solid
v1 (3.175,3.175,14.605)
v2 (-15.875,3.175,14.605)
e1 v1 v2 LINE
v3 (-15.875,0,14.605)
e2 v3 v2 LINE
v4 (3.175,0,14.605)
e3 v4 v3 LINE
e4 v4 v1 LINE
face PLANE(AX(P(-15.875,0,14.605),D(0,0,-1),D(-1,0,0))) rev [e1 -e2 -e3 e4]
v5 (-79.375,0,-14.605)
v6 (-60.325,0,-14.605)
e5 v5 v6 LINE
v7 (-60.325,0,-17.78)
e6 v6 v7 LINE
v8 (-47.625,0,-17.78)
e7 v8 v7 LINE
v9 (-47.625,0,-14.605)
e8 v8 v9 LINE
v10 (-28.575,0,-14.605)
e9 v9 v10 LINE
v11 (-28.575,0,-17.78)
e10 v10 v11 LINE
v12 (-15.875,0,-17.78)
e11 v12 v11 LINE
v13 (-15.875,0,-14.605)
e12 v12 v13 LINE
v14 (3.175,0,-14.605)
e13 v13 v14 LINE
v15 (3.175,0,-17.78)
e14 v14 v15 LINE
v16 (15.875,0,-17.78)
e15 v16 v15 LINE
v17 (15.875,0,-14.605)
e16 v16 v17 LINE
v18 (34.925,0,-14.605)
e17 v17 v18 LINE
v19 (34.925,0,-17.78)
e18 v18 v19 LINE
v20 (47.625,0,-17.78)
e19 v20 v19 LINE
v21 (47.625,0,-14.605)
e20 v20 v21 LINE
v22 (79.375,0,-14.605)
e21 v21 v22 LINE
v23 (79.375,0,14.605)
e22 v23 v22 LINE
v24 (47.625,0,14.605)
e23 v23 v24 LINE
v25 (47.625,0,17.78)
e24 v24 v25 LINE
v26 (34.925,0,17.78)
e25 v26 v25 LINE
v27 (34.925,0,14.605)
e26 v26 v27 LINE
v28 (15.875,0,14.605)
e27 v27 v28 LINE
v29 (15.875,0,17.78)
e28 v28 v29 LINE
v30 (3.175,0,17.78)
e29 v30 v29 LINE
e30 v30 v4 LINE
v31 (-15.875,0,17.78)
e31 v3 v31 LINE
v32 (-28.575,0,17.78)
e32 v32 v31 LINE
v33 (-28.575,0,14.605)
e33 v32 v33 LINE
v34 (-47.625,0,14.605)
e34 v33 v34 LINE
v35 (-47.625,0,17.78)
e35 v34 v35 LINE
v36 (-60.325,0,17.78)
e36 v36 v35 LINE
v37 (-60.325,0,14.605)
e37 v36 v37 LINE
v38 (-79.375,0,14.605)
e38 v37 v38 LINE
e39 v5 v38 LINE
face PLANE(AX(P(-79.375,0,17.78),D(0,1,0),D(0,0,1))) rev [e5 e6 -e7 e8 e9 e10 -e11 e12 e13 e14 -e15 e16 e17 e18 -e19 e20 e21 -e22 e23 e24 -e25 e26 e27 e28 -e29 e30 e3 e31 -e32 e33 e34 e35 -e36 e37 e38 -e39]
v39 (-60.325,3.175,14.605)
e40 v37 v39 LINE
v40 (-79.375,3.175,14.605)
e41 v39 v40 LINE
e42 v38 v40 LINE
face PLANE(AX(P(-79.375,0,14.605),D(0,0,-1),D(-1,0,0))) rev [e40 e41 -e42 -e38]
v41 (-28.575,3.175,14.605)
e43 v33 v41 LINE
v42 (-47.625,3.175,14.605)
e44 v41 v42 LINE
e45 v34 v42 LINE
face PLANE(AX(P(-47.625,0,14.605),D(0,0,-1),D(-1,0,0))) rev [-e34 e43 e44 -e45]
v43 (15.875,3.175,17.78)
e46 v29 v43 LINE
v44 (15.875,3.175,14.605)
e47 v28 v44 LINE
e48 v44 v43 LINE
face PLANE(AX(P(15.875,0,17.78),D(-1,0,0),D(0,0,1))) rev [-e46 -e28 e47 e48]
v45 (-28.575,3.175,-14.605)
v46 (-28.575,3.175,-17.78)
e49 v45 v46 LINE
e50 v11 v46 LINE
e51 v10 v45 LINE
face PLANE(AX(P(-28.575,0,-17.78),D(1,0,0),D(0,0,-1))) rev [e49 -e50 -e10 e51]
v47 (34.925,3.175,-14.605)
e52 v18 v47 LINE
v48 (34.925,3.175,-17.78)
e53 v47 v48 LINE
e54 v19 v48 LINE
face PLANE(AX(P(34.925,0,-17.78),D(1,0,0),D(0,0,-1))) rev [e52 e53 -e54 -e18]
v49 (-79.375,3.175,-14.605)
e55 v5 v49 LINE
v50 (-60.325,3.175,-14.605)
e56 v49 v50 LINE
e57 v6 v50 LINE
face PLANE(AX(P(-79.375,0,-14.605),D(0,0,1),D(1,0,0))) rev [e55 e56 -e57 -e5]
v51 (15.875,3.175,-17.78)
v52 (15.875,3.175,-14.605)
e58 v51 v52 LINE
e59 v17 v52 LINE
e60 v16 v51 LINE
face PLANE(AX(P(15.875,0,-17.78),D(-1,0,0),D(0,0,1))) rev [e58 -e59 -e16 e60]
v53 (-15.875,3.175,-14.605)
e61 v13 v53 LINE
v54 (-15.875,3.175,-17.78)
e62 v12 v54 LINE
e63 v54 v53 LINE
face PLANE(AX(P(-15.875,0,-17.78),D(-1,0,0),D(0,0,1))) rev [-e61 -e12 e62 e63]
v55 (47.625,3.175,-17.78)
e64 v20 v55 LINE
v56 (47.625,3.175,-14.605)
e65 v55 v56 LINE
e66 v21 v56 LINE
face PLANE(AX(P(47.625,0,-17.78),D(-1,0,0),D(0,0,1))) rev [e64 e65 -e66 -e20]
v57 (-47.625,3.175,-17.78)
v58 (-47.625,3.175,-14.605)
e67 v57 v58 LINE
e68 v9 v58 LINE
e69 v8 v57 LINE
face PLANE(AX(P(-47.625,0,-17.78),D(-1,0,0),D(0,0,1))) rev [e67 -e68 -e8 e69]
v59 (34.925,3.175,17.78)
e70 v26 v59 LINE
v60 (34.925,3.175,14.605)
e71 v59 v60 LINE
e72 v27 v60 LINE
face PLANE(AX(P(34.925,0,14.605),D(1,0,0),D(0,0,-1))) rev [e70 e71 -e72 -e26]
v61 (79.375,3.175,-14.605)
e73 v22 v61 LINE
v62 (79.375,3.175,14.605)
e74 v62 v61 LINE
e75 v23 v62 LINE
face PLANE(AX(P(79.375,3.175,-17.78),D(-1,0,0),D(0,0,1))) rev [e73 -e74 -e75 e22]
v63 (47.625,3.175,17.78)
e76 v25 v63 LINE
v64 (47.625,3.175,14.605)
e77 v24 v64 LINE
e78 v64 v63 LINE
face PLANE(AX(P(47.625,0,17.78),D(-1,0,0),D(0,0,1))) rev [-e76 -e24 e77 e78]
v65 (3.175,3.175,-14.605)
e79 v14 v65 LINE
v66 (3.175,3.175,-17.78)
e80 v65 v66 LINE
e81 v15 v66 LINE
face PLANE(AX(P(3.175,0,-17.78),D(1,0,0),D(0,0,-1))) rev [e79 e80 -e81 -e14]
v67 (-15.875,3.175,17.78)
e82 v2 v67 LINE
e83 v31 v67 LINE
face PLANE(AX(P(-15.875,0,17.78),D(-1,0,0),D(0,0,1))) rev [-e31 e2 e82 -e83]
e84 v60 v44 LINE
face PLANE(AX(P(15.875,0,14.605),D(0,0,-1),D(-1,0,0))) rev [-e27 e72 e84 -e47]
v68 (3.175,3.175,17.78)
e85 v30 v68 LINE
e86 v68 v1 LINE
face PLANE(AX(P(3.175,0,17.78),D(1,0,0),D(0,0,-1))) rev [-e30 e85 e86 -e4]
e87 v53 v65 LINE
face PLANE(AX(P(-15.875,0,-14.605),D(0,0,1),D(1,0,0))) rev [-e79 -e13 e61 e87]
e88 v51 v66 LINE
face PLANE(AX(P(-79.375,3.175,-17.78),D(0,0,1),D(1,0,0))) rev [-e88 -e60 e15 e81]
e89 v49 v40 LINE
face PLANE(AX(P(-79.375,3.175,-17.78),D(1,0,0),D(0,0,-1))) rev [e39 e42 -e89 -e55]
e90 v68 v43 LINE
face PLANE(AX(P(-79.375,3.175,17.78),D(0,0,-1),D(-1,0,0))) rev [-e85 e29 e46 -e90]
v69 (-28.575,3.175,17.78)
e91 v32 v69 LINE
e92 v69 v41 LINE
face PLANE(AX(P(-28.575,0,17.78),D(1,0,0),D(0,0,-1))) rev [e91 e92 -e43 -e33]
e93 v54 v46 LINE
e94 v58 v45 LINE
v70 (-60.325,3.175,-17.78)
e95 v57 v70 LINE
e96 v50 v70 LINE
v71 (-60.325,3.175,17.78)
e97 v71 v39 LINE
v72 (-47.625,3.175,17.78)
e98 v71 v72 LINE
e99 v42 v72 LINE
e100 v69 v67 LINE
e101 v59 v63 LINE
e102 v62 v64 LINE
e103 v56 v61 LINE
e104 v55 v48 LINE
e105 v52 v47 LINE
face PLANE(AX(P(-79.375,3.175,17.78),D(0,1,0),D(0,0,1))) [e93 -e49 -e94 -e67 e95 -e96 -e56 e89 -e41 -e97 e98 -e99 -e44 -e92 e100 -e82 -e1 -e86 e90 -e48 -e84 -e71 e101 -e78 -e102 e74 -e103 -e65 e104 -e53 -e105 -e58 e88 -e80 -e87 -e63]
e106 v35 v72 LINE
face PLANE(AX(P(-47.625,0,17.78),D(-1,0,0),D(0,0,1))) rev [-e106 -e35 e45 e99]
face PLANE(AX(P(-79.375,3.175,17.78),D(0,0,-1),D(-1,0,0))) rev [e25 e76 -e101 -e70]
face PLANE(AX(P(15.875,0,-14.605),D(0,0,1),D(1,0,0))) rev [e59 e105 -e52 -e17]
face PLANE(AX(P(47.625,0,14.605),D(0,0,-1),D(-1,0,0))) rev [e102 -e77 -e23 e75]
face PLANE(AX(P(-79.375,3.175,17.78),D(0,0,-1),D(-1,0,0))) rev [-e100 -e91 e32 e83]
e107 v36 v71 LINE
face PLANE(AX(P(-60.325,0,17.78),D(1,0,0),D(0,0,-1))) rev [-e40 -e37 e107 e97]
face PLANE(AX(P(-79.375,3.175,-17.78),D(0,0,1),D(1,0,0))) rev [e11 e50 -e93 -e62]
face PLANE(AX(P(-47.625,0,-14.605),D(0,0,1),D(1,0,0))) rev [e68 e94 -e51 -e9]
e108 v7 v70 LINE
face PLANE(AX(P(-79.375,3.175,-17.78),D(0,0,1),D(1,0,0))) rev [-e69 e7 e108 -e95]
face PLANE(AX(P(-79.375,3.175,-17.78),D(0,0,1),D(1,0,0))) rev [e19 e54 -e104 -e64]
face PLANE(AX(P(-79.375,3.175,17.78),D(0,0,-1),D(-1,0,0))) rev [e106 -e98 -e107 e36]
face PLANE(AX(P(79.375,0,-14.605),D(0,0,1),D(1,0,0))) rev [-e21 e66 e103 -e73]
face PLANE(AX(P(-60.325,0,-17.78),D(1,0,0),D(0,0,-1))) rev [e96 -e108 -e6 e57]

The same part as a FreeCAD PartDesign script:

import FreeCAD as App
import Part
import Sketcher
from FreeCAD import Vector
Q = App.Units.Quantity


def add_polygon(sketch, points):
    """Adds a closed chain of lines whose ends are joined by coincident constraints."""
    first, n = sketch.GeometryCount, len(points)
    for a, b in zip(points, points[1:] + points[:1]):
        sketch.addGeometry(Part.LineSegment(App.Vector(*a, 0), App.Vector(*b, 0)), False)
    for i in range(n):
        sketch.addConstraint(Sketcher.Constraint("Coincident", first + i, 2, first + (i + 1) % n, 1))

doc = App.newDocument("Part")
body = doc.addObject("PartDesign::Body", "Body")

# Sketch on XZ plane
sketch1 = doc.addObject("Sketcher::SketchObject", "Sketch")
body.addObject(sketch1)
sketch1.AttachmentSupport = (doc.XZ_Plane, [""])
sketch1.MapMode = "FlatFace"
add_polygon(sketch1, [(-79, -18), (-79, 18), (79, 18), (79, -18)])  # lines 0-3
sketch1.addConstraint([
    Sketcher.Constraint("Vertical", 0),
    Sketcher.Constraint("Horizontal", 1),
    Sketcher.Constraint("Vertical", 2),
    Sketcher.Constraint("Horizontal", 3),
    Sketcher.Constraint("Symmetric", 0, 2, 2, 2, -1, 1),
    Sketcher.Constraint("DistanceY", 0, 1, 0, 2, Q("1.4 in")),
    Sketcher.Constraint("DistanceX", 1, 1, 1, 2, Q("6.25 in")),
])
pad1 = doc.addObject("PartDesign::Pad", "Pad")
body.addObject(pad1)
pad1.Profile = sketch1
pad1.Length = Q("0.125 in")
pad1.Reversed = True

# Sketch on XZ plane
sketch2 = doc.addObject("Sketcher::SketchObject", "Sketch001")
body.addObject(sketch2)
sketch2.AttachmentSupport = (doc.XZ_Plane, [""])
sketch2.MapMode = "FlatFace"
sketch2.AttachmentOffset = App.Placement(Vector(0, 0, -0.125 * 25.4), App.Rotation())
add_polygon(sketch2, [(79.4, 14.6), (47.6, 14.6), (47.6, 17.8), (79.4, 17.8)])  # lines 0-3
add_polygon(sketch2, [(-79.4, -17.8), (-79.4, -14.6), (-60.3, -14.6), (-60.3, -17.8)])  # lines 4-7
add_polygon(sketch2, [(79.4, -17.8), (47.6, -17.8), (47.6, -14.6), (79.4, -14.6)])  # lines 8-11
add_polygon(sketch2, [(15.9, 14.6), (15.9, 17.8), (34.9, 17.8), (34.9, 14.6)])  # lines 12-15
add_polygon(sketch2, [(-15.9, 14.6), (-15.9, 17.8), (3.2, 17.8), (3.2, 14.6)])  # lines 16-19
add_polygon(sketch2, [(-47.6, 14.6), (-47.6, 17.8), (-28.6, 17.8), (-28.6, 14.6)])  # lines 20-23
add_polygon(sketch2, [(-79.4, 14.6), (-79.4, 17.8), (-60.3, 17.8), (-60.3, 14.6)])  # lines 24-27
add_polygon(sketch2, [(-47.6, -17.8), (-47.6, -14.6), (-28.6, -14.6), (-28.6, -17.8)])  # lines 28-31
add_polygon(sketch2, [(-15.9, -17.8), (-15.9, -14.6), (3.2, -14.6), (3.2, -17.8)])  # lines 32-35
add_polygon(sketch2, [(15.9, -17.8), (15.9, -14.6), (34.9, -14.6), (34.9, -17.8)])  # lines 36-39
sketch2.addConstraint([
    Sketcher.Constraint("Horizontal", 0),
    Sketcher.Constraint("Vertical", 1),
    Sketcher.Constraint("Horizontal", 2),
    Sketcher.Constraint("Vertical", 3),
    Sketcher.Constraint("Vertical", 4),
    Sketcher.Constraint("Horizontal", 5),
    Sketcher.Constraint("Vertical", 6),
    Sketcher.Constraint("Horizontal", 7),
    Sketcher.Constraint("Horizontal", 8),
    Sketcher.Constraint("Vertical", 9),
    Sketcher.Constraint("Horizontal", 10),
    Sketcher.Constraint("Vertical", 11),
    Sketcher.Constraint("Vertical", 12),
    Sketcher.Constraint("Horizontal", 13),
    Sketcher.Constraint("Vertical", 14),
    Sketcher.Constraint("Horizontal", 15),
    Sketcher.Constraint("Vertical", 16),
    Sketcher.Constraint("Horizontal", 17),
    Sketcher.Constraint("Vertical", 18),
    Sketcher.Constraint("Horizontal", 19),
    Sketcher.Constraint("Vertical", 20),
    Sketcher.Constraint("Horizontal", 21),
    Sketcher.Constraint("Vertical", 22),
    Sketcher.Constraint("Horizontal", 23),
    Sketcher.Constraint("Vertical", 24),
    Sketcher.Constraint("Horizontal", 25),
    Sketcher.Constraint("Vertical", 26),
    Sketcher.Constraint("Horizontal", 27),
    Sketcher.Constraint("Vertical", 28),
    Sketcher.Constraint("Horizontal", 29),
    Sketcher.Constraint("Vertical", 30),
    Sketcher.Constraint("Horizontal", 31),
    Sketcher.Constraint("Vertical", 32),
    Sketcher.Constraint("Horizontal", 33),
    Sketcher.Constraint("Vertical", 34),
    Sketcher.Constraint("Horizontal", 35),
    Sketcher.Constraint("Vertical", 36),
    Sketcher.Constraint("Horizontal", 37),
    Sketcher.Constraint("Vertical", 38),
    Sketcher.Constraint("Horizontal", 39),
    Sketcher.Constraint("Symmetric", 3, 2, 4, 2, -1, 1),
    Sketcher.Constraint("Symmetric", 8, 2, 20, 2, -1, 1),
    Sketcher.Constraint("Symmetric", 11, 2, 24, 2, -1, 1),
    Sketcher.Constraint("Symmetric", 0, 2, 28, 2, -1, 1),
    Sketcher.Constraint("Symmetric", 15, 2, 32, 2, -1, 1),
    Sketcher.Constraint("Symmetric", 19, 2, 36, 2, -1, 1),
    Sketcher.Constraint("Symmetric", 4, 2, 10, 2, -2),
    Sketcher.Constraint("Symmetric", 12, 2, 16, 2, -2),
    Sketcher.Constraint("Symmetric", 1, 2, 20, 2, -2),
    Sketcher.Constraint("Symmetric", 6, 2, 25, 2, -1),
    Sketcher.Constraint("Symmetric", 22, 2, 29, 2, -1),
    Sketcher.Constraint("Symmetric", 18, 2, 33, 2, -1),
    Sketcher.Constraint("Symmetric", 13, 2, 38, 2, -1),
    Sketcher.Constraint("Horizontal", 2, 2, 12, 2),
    Sketcher.Constraint("Horizontal", 3, 2, 14, 2),
    Sketcher.Constraint("Horizontal", 23, 2, 26, 2),
    Sketcher.Constraint("Horizontal", 11, 2, 30, 2),
    Sketcher.Constraint("Horizontal", 31, 2, 34, 2),
    Sketcher.Constraint("Equal", 7, 13),
    Sketcher.Constraint("Equal", 15, 17),
    Sketcher.Constraint("Equal", 19, 21),
    Sketcher.Constraint("DistanceX", 4, 2, 0, 2, Q("5 in")),
    Sketcher.Constraint("DistanceX", 16, 2, 13, 2, Q("2 in")),
    Sketcher.Constraint("DistanceX", 0, 2, 0, 1, Q("1.25 in")),
    Sketcher.Constraint("DistanceX", 5, 1, 5, 2, Q("0.75 in")),
    Sketcher.Constraint("DistanceY", -1, 1, 1, 2, Q("0.7 in")),
    Sketcher.Constraint("DistanceY", 1, 1, 1, 2, Q("0.125 in")),
])
pocket1 = doc.addObject("PartDesign::Pocket", "Pocket")
body.addObject(pocket1)
pocket1.Profile = sketch2
pocket1.Type = "ThroughAll"
pocket1.Reversed = True

doc.recompute()
